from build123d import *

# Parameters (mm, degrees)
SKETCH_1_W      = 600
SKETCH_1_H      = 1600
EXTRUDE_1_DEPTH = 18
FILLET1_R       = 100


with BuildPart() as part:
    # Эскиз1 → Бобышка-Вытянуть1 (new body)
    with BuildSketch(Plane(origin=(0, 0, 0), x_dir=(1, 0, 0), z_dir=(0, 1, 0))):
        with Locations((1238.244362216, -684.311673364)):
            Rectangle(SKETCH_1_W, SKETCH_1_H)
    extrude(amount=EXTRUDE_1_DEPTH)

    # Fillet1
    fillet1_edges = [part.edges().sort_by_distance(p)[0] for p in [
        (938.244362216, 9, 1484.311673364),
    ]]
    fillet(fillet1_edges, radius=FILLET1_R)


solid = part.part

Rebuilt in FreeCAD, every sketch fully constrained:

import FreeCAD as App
import Part
import Sketcher
from FreeCAD import Vector


def edges_at(feature, points):
    """Names of the edges that pass closest to the given points."""
    edges = feature.Shape.Edges
    near = lambda p: min(range(len(edges)), key=lambda i: edges[i].distToShape(Part.Vertex(*p))[0])
    return sorted({f"Edge{near(p) + 1}" for p in points})


def add_polygon(sketch, points):
    """Adds a closed chain of lines whose ends are joined by coincident constraints."""
    first, n = sketch.GeometryCount, len(points)
    for a, b in zip(points, points[1:] + points[:1]):
        sketch.addGeometry(Part.LineSegment(App.Vector(*a, 0), App.Vector(*b, 0)), False)
    for i in range(n):
        sketch.addConstraint(Sketcher.Constraint("Coincident", first + i, 2, first + (i + 1) % n, 1))

doc = App.newDocument("Part")
params = doc.addObject("Spreadsheet::Sheet", "Params")
for row, (alias, value) in enumerate([
    ("sketch1_width", "600 mm"),
    ("sketch1_height", "1600 mm"),
    ("pad1_length", "18 mm"),
    ("fillet_radius", "100 mm"),
], start=1):
    params.set(f"A{row}", alias)
    params.set(f"B{row}", "=" + value)
    params.setAlias(f"B{row}", alias)

body = doc.addObject("PartDesign::Body", "Body")

sketch1 = body.newObject("Sketcher::SketchObject", "Sketch")
sketch1.AttachmentSupport = (doc.getObject("XZ_Plane"), [""])
sketch1.MapMode = "FlatFace"
add_polygon(sketch1, [(938, -116), (938, 1484), (1538, 1484), (1538, -116)])
sketch1.addConstraint(Sketcher.Constraint("Vertical", 0))
sketch1.addConstraint(Sketcher.Constraint("Horizontal", 1))
sketch1.addConstraint(Sketcher.Constraint("Vertical", 2))
sketch1.addConstraint(Sketcher.Constraint("Horizontal", 3))
sketch1.addConstraint(Sketcher.Constraint("DistanceX", 1, 1, 1, 2, 600.0))
sketch1.addConstraint(Sketcher.Constraint("DistanceY", 0, 1, 0, 2, 1600.0))
sketch1.addConstraint(Sketcher.Constraint("DistanceX", -1, 1, 0, 2, 938.244362))
sketch1.addConstraint(Sketcher.Constraint("DistanceY", -1, 1, 0, 2, 1484.311673))
sketch1.setExpression("Constraints[8]", "Params.sketch1_width")
sketch1.setExpression("Constraints[9]", "Params.sketch1_height")
pad1 = body.newObject("PartDesign::Pad", "Pad")
pad1.Profile = sketch1
pad1.setExpression("Length", "Params.pad1_length")
pad1.Reversed = True
doc.recompute()

fillet = body.newObject("PartDesign::Fillet", "Fillet")
fillet.Base = (pad1, edges_at(pad1, [(938.244, 9, 1484.312)]))
fillet.setExpression("Radius", "Params.fillet_radius")

doc.recompute()
